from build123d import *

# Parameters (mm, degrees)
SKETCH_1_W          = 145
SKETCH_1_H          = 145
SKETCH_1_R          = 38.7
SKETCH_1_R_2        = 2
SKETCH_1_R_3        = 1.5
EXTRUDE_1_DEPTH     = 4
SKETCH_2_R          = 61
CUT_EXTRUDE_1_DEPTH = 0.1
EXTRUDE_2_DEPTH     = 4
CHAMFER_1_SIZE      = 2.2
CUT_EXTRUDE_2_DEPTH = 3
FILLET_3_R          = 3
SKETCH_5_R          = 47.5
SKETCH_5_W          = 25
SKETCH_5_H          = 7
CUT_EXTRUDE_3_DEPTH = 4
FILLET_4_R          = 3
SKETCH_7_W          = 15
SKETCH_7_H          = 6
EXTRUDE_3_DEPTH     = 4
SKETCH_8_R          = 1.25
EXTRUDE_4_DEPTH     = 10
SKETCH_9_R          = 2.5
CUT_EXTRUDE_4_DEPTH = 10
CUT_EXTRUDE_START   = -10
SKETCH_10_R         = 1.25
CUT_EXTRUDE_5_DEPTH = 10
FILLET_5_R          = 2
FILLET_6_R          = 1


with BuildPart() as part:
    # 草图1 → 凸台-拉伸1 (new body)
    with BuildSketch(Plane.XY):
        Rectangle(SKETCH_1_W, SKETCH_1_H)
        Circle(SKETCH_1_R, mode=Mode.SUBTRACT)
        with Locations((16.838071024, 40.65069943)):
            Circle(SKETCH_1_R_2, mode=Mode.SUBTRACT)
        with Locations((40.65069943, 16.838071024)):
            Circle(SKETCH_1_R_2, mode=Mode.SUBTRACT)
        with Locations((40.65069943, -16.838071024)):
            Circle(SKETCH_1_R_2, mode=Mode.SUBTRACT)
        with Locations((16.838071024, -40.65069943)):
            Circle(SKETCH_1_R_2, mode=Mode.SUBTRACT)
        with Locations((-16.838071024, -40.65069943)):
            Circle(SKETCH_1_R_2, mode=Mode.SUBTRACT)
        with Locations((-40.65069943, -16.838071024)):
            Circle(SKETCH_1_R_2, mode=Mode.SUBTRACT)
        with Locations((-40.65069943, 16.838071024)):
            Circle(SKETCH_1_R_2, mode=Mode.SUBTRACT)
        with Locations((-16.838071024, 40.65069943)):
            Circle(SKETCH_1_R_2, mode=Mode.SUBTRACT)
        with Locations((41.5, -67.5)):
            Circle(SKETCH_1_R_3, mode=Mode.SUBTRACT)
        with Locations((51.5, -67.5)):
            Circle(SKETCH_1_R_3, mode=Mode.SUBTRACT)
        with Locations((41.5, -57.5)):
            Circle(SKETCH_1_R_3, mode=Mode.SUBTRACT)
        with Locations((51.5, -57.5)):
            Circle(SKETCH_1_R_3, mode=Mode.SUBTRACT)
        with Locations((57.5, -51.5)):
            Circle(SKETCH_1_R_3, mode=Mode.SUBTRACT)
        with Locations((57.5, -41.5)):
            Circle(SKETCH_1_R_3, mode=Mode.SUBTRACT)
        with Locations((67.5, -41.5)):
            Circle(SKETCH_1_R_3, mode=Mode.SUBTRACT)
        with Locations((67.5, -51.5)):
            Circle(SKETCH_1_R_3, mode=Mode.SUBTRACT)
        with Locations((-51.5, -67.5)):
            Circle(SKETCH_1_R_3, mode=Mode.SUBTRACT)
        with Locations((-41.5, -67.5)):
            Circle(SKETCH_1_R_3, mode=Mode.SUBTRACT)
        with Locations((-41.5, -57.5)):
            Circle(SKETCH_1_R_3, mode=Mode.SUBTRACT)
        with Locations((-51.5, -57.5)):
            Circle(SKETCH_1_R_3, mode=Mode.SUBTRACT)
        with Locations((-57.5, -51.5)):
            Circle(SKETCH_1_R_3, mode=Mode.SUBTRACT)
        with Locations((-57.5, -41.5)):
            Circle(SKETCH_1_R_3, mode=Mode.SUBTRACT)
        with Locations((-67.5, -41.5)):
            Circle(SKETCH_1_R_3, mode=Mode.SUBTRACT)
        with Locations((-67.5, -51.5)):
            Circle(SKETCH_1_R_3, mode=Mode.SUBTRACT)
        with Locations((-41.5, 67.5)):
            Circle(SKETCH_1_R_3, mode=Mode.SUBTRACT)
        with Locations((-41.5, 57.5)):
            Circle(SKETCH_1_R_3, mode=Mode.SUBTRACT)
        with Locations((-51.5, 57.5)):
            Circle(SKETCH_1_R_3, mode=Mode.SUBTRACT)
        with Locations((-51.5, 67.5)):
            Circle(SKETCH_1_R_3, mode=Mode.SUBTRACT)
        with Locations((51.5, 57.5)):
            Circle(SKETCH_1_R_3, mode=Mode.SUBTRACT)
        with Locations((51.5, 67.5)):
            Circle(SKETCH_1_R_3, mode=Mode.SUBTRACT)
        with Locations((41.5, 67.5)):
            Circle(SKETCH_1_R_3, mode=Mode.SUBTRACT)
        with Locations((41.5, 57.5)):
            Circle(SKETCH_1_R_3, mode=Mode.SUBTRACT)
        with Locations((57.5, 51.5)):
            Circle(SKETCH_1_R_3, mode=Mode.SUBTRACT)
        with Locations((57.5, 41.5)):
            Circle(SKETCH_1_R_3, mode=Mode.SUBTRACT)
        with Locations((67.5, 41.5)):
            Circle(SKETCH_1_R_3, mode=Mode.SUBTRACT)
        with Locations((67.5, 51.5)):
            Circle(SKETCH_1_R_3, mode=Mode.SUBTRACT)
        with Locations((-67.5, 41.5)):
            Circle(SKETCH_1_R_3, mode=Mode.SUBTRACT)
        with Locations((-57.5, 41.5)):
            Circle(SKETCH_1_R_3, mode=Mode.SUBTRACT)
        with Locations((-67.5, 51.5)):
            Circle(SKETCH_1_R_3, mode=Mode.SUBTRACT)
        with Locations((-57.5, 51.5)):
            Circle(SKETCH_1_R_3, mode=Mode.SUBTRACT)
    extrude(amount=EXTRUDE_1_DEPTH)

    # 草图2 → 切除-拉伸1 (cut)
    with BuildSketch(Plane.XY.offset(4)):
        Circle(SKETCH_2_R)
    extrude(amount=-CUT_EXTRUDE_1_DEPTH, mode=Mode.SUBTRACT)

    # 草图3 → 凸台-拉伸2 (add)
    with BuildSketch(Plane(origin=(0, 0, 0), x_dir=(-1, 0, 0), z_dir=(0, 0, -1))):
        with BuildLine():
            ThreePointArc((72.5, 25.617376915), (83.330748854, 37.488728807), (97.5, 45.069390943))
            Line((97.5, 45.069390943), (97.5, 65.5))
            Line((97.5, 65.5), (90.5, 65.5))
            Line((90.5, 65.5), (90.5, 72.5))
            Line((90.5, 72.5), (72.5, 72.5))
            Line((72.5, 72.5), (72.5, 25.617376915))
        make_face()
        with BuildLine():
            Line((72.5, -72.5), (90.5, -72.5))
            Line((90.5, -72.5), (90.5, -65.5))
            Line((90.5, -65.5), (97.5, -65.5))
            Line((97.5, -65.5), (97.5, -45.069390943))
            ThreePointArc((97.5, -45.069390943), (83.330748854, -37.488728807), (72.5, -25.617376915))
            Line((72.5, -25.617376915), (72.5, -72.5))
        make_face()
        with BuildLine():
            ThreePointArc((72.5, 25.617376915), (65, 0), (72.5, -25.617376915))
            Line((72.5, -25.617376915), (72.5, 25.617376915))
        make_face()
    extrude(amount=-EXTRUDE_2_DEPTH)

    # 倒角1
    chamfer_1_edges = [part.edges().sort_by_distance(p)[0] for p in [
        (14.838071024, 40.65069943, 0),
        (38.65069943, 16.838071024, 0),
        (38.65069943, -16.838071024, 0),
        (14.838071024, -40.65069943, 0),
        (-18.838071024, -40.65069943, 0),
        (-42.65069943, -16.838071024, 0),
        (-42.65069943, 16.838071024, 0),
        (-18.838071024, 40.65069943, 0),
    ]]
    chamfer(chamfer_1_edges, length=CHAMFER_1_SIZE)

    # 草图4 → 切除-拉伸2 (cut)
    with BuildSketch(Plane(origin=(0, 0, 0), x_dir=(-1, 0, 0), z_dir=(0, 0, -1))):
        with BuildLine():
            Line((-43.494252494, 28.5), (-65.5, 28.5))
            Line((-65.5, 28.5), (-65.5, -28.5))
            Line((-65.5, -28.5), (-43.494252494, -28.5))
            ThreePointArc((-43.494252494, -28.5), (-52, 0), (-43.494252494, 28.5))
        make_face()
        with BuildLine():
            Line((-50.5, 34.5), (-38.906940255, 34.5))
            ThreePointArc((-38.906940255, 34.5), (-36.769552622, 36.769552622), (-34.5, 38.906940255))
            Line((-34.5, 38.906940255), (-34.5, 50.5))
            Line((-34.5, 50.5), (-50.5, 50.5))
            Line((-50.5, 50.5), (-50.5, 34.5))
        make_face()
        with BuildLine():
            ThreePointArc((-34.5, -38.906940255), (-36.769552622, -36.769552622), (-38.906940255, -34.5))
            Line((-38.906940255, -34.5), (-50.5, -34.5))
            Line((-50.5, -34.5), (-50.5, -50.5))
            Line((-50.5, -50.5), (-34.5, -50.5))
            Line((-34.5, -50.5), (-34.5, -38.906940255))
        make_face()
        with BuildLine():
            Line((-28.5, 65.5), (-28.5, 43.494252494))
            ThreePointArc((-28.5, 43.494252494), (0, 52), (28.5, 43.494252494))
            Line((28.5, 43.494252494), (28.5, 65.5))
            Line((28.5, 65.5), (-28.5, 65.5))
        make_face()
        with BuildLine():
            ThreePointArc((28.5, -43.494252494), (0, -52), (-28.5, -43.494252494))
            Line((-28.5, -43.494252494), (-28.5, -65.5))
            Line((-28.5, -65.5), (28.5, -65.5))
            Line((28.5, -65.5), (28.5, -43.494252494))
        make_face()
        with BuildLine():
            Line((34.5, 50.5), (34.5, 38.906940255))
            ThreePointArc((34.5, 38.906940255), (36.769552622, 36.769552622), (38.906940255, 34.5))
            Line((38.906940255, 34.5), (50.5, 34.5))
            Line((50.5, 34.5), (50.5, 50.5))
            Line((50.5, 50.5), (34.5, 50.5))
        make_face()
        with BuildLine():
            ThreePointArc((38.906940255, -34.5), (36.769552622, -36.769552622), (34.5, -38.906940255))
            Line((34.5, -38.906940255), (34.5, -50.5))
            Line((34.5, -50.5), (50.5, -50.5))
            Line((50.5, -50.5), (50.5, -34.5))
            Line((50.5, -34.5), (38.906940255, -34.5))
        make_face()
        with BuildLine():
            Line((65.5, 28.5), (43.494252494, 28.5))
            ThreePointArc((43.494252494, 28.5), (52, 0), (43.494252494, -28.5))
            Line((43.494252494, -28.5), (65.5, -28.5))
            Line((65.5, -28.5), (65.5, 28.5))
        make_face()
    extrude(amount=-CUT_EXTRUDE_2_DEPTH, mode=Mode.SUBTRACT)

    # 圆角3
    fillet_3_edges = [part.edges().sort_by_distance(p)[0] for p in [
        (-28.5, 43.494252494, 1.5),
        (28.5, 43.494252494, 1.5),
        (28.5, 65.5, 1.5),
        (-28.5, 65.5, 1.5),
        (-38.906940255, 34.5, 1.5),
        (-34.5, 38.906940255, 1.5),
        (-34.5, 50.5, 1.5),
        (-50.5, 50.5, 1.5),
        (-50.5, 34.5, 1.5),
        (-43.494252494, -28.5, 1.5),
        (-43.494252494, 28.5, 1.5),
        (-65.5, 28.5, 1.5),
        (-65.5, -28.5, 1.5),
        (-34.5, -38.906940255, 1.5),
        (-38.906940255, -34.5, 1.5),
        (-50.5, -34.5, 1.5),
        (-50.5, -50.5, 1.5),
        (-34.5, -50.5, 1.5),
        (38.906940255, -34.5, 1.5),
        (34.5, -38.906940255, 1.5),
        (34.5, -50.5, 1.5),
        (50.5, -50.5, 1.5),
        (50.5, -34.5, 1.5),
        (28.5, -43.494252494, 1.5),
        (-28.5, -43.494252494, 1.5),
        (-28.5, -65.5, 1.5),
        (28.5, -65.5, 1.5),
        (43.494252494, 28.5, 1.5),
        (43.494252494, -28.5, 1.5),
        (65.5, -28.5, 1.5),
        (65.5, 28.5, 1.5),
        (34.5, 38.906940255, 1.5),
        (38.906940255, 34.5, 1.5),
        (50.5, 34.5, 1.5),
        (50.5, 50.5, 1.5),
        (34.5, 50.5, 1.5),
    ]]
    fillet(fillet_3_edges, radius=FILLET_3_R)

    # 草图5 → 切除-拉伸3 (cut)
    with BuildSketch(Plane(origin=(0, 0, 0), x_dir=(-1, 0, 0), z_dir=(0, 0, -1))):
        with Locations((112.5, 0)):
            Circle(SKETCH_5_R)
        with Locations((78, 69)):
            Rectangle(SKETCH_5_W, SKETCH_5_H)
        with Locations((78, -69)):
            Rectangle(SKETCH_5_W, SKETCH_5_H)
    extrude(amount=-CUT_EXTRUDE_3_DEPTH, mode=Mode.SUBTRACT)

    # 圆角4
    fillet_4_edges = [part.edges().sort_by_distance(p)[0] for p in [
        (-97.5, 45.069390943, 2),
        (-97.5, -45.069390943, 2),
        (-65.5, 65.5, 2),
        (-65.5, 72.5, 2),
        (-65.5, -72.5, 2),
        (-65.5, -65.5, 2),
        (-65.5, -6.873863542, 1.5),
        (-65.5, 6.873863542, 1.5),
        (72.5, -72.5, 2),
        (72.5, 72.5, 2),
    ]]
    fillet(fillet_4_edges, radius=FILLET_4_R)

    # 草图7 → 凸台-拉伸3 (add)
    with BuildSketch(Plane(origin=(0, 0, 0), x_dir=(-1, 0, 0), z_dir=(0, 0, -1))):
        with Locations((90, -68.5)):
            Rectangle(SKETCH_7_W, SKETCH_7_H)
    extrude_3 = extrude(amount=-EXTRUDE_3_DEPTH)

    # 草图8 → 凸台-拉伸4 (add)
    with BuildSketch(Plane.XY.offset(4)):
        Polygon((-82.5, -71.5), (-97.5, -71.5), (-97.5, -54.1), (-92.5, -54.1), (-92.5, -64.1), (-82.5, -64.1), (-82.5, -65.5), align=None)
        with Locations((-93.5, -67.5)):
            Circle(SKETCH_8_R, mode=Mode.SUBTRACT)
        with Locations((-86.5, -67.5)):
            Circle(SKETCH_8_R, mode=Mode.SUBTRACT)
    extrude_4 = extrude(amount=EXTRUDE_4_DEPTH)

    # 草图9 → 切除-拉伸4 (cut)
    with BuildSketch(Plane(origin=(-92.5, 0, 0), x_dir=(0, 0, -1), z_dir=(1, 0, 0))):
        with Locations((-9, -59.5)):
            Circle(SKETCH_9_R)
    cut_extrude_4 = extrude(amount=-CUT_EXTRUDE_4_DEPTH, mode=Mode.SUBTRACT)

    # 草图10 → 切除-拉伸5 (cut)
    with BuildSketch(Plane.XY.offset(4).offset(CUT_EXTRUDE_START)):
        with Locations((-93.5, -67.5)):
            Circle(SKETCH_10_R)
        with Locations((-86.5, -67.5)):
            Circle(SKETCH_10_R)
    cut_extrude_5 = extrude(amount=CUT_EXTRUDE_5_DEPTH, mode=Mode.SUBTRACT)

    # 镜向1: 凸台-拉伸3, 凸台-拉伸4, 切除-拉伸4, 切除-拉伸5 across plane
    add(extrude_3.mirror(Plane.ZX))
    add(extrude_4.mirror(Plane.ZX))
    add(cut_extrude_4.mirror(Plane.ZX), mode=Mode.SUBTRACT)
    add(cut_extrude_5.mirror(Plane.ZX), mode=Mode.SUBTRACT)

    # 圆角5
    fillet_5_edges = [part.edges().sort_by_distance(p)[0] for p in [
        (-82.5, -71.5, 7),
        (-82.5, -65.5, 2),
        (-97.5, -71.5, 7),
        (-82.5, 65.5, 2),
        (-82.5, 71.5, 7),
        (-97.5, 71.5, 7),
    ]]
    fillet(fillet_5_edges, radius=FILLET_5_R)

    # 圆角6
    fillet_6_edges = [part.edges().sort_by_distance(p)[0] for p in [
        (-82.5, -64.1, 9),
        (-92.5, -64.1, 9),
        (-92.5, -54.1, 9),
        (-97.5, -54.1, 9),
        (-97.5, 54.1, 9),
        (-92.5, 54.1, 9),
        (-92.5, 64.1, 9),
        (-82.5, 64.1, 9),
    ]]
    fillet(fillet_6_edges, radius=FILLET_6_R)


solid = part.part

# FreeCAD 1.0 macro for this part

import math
import FreeCAD as App
import Part
import Sketcher
from FreeCAD import Vector
Q = App.Units.Quantity


def edges_at(feature, points):
    """Names of the edges that pass closest to the given points."""
    edges = feature.Shape.Edges
    near = lambda p: min(range(len(edges)), key=lambda i: edges[i].distToShape(Part.Vertex(*p))[0])
    return sorted({f"Edge{near(p) + 1}" for p in points})


def add_polygon(sketch, points):
    """Adds a closed chain of lines whose ends are joined by coincident constraints."""
    first, n = sketch.GeometryCount, len(points)
    for a, b in zip(points, points[1:] + points[:1]):
        sketch.addGeometry(Part.LineSegment(App.Vector(*a, 0), App.Vector(*b, 0)), False)
    for i in range(n):
        sketch.addConstraint(Sketcher.Constraint("Coincident", first + i, 2, first + (i + 1) % n, 1))

doc = App.newDocument("Part")
body = doc.addObject("PartDesign::Body", "Body")

sketch1 = doc.addObject("Sketcher::SketchObject", "Sketch")
body.addObject(sketch1)
sketch1.AttachmentSupport = (doc.XY_Plane, [""])
sketch1.MapMode = "FlatFace"
add_polygon(sketch1, [(-72.5, 72.5), (-72.5, -72.5), (72.5, -72.5), (72.5, 72.5)])
sketch1.addGeometry(Part.Circle(Vector(-51.5, -67.5, 0), Vector(0, 0, 1), 1.5), False)
sketch1.addGeometry(Part.Circle(Vector(-41.5, -67.5, 0), Vector(0, 0, 1), 1.5), False)
sketch1.addGeometry(Part.Circle(Vector(-51.5, -57.5, 0), Vector(0, 0, 1), 1.5), False)
sketch1.addGeometry(Part.Circle(Vector(-41.5, -57.5, 0), Vector(0, 0, 1), 1.5), False)
sketch1.addGeometry(Part.Circle(Vector(-67.5, -51.5, 0), Vector(0, 0, 1), 1.5), False)
sketch1.addGeometry(Part.Circle(Vector(-57.5, -51.5, 0), Vector(0, 0, 1), 1.5), False)
sketch1.addGeometry(Part.Circle(Vector(-67.5, -41.5, 0), Vector(0, 0, 1), 1.5), False)
sketch1.addGeometry(Part.Circle(Vector(-57.5, -41.5, 0), Vector(0, 0, 1), 1.5), False)
sketch1.addGeometry(Part.Circle(Vector(-16.8, -40.7, 0), Vector(0, 0, 1), 2), False)
sketch1.addGeometry(Part.Circle(Vector(-40.7, -16.8, 0), Vector(0, 0, 1), 2), False)
sketch1.addGeometry(Part.Circle(Vector(16.8, -40.7, 0), Vector(0, 0, 1), 2), False)
sketch1.addGeometry(Part.Circle(Vector(41.5, -67.5, 0), Vector(0, 0, 1), 1.5), False)
sketch1.addGeometry(Part.Circle(Vector(51.5, -67.5, 0), Vector(0, 0, 1), 1.5), False)
sketch1.addGeometry(Part.Circle(Vector(41.5, -57.5, 0), Vector(0, 0, 1), 1.5), False)
sketch1.addGeometry(Part.Circle(Vector(51.5, -57.5, 0), Vector(0, 0, 1), 1.5), False)
sketch1.addGeometry(Part.Circle(Vector(57.5, -51.5, 0), Vector(0, 0, 1), 1.5), False)
sketch1.addGeometry(Part.Circle(Vector(67.5, -51.5, 0), Vector(0, 0, 1), 1.5), False)
sketch1.addGeometry(Part.Circle(Vector(57.5, -41.5, 0), Vector(0, 0, 1), 1.5), False)
sketch1.addGeometry(Part.Circle(Vector(67.5, -41.5, 0), Vector(0, 0, 1), 1.5), False)
sketch1.addGeometry(Part.Circle(Vector(40.7, -16.8, 0), Vector(0, 0, 1), 2), False)
sketch1.addGeometry(Part.Circle(Vector(-40.7, 16.8, 0), Vector(0, 0, 1), 2), False)
sketch1.addGeometry(Part.Circle(Vector(-67.5, 41.5, 0), Vector(0, 0, 1), 1.5), False)
sketch1.addGeometry(Part.Circle(Vector(-57.5, 41.5, 0), Vector(0, 0, 1), 1.5), False)
sketch1.addGeometry(Part.Circle(Vector(-67.5, 51.5, 0), Vector(0, 0, 1), 1.5), False)
sketch1.addGeometry(Part.Circle(Vector(-57.5, 51.5, 0), Vector(0, 0, 1), 1.5), False)
sketch1.addGeometry(Part.Circle(Vector(-51.5, 57.5, 0), Vector(0, 0, 1), 1.5), False)
sketch1.addGeometry(Part.Circle(Vector(-41.5, 57.5, 0), Vector(0, 0, 1), 1.5), False)
sketch1.addGeometry(Part.Circle(Vector(-51.5, 67.5, 0), Vector(0, 0, 1), 1.5), False)
sketch1.addGeometry(Part.Circle(Vector(-41.5, 67.5, 0), Vector(0, 0, 1), 1.5), False)
sketch1.addGeometry(Part.Circle(Vector(-16.8, 40.7, 0), Vector(0, 0, 1), 2), False)
sketch1.addGeometry(Part.Circle(Vector(0, 0, 0), Vector(0, 0, 1), 38.7), False)
sketch1.addGeometry(Part.Circle(Vector(40.7, 16.8, 0), Vector(0, 0, 1), 2), False)
sketch1.addGeometry(Part.Circle(Vector(16.8, 40.7, 0), Vector(0, 0, 1), 2), False)
sketch1.addGeometry(Part.Circle(Vector(57.5, 41.5, 0), Vector(0, 0, 1), 1.5), False)
sketch1.addGeometry(Part.Circle(Vector(67.5, 41.5, 0), Vector(0, 0, 1), 1.5), False)
sketch1.addGeometry(Part.Circle(Vector(57.5, 51.5, 0), Vector(0, 0, 1), 1.5), False)
sketch1.addGeometry(Part.Circle(Vector(67.5, 51.5, 0), Vector(0, 0, 1), 1.5), False)
sketch1.addGeometry(Part.Circle(Vector(41.5, 57.5, 0), Vector(0, 0, 1), 1.5), False)
sketch1.addGeometry(Part.Circle(Vector(51.5, 57.5, 0), Vector(0, 0, 1), 1.5), False)
sketch1.addGeometry(Part.Circle(Vector(41.5, 67.5, 0), Vector(0, 0, 1), 1.5), False)
sketch1.addGeometry(Part.Circle(Vector(51.5, 67.5, 0), Vector(0, 0, 1), 1.5), False)
sketch1.addConstraint([
    Sketcher.Constraint("Vertical", 0),
    Sketcher.Constraint("Horizontal", 1),
    Sketcher.Constraint("Vertical", 2),
    Sketcher.Constraint("Horizontal", 3),
    Sketcher.Constraint("Coincident", 34, 3, -1, 1),
    Sketcher.Constraint("Equal", 4, 5),
    Sketcher.Constraint("Equal", 5, 6),
    Sketcher.Constraint("Equal", 6, 7),
    Sketcher.Constraint("Equal", 7, 8),
    Sketcher.Constraint("Equal", 8, 9),
    Sketcher.Constraint("Equal", 9, 10),
    Sketcher.Constraint("Equal", 10, 11),
    Sketcher.Constraint("Equal", 12, 13),
    Sketcher.Constraint("Equal", 13, 14),
    Sketcher.Constraint("Equal", 11, 15),
    Sketcher.Constraint("Equal", 15, 16),
    Sketcher.Constraint("Equal", 16, 17),
    Sketcher.Constraint("Equal", 17, 18),
    Sketcher.Constraint("Equal", 18, 19),
    Sketcher.Constraint("Equal", 19, 20),
    Sketcher.Constraint("Equal", 20, 21),
    Sketcher.Constraint("Equal", 21, 22),
    Sketcher.Constraint("Equal", 14, 23),
    Sketcher.Constraint("Equal", 23, 24),
    Sketcher.Constraint("Equal", 22, 25),
    Sketcher.Constraint("Equal", 25, 26),
    Sketcher.Constraint("Equal", 26, 27),
    Sketcher.Constraint("Equal", 27, 28),
    Sketcher.Constraint("Equal", 28, 29),
    Sketcher.Constraint("Equal", 29, 30),
    Sketcher.Constraint("Equal", 30, 31),
    Sketcher.Constraint("Equal", 31, 32),
    Sketcher.Constraint("Equal", 24, 33),
    Sketcher.Constraint("Equal", 33, 35),
    Sketcher.Constraint("Equal", 35, 36),
    Sketcher.Constraint("Equal", 32, 37),
    Sketcher.Constraint("Equal", 37, 38),
    Sketcher.Constraint("Equal", 38, 39),
    Sketcher.Constraint("Equal", 39, 40),
    Sketcher.Constraint("Equal", 40, 41),
    Sketcher.Constraint("Equal", 41, 42),
    Sketcher.Constraint("Equal", 42, 43),
    Sketcher.Constraint("Equal", 43, 44),
    Sketcher.Constraint("Symmetric", 23, 3, 24, 3, -1, 1),
    Sketcher.Constraint("Symmetric", 22, 3, 25, 3, -1, 1),
    Sketcher.Constraint("Symmetric", 21, 3, 26, 3, -1, 1),
    Sketcher.Constraint("Symmetric", 20, 3, 27, 3, -1, 1),
    Sketcher.Constraint("Symmetric", 19, 3, 28, 3, -1, 1),
    Sketcher.Constraint("Symmetric", 18, 3, 29, 3, -1, 1),
    Sketcher.Constraint("Symmetric", 17, 3, 30, 3, -1, 1),
    Sketcher.Constraint("Symmetric", 16, 3, 31, 3, -1, 1),
    Sketcher.Constraint("Symmetric", 15, 3, 32, 3, -1, 1),
    Sketcher.Constraint("Symmetric", 14, 3, 33, 3, -1, 1),
    Sketcher.Constraint("Symmetric", 13, 3, 35, 3, -1, 1),
    Sketcher.Constraint("Symmetric", 12, 3, 36, 3, -1, 1),
    Sketcher.Constraint("Symmetric", 11, 3, 37, 3, -1, 1),
    Sketcher.Constraint("Symmetric", 10, 3, 38, 3, -1, 1),
    Sketcher.Constraint("Symmetric", 9, 3, 39, 3, -1, 1),
    Sketcher.Constraint("Symmetric", 8, 3, 40, 3, -1, 1),
    Sketcher.Constraint("Symmetric", 7, 3, 41, 3, -1, 1),
    Sketcher.Constraint("Symmetric", 6, 3, 42, 3, -1, 1),
    Sketcher.Constraint("Symmetric", 5, 3, 43, 3, -1, 1),
    Sketcher.Constraint("Symmetric", 4, 3, 44, 3, -1, 1),
    Sketcher.Constraint("Symmetric", 0, 2, 2, 2, -1, 1),
    Sketcher.Constraint("Symmetric", 12, 3, 14, 3, -2),
    Sketcher.Constraint("Symmetric", 5, 3, 15, 3, -2),
    Sketcher.Constraint("Symmetric", 4, 3, 16, 3, -2),
    Sketcher.Constraint("Symmetric", 7, 3, 17, 3, -2),
    Sketcher.Constraint("Symmetric", 6, 3, 18, 3, -2),
    Sketcher.Constraint("Symmetric", 9, 3, 19, 3, -2),
    Sketcher.Constraint("Symmetric", 8, 3, 20, 3, -2),
    Sketcher.Constraint("Symmetric", 11, 3, 21, 3, -2),
    Sketcher.Constraint("Symmetric", 10, 3, 22, 3, -2),
    Sketcher.Constraint("Symmetric", 13, 3, 23, 3, -2),
    Sketcher.Constraint("Horizontal", 4, 3, 5, 3),
    Sketcher.Constraint("Horizontal", 6, 3, 7, 3),
    Sketcher.Constraint("Horizontal", 8, 3, 9, 3),
    Sketcher.Constraint("Horizontal", 10, 3, 11, 3),
    Sketcher.Constraint("Vertical", 4, 3, 6, 3),
    Sketcher.Constraint("Vertical", 5, 3, 7, 3),
    Sketcher.Constraint("Vertical", 8, 3, 10, 3),
    Sketcher.Constraint("Vertical", 9, 3, 11, 3),
    Sketcher.Constraint("Equal", 3, 0),
    Sketcher.Constraint("Diameter", 4, Q("3 mm")),
    Sketcher.Constraint("Diameter", 12, Q("4 mm")),
    Sketcher.Constraint("Diameter", 34, Q("77.4 mm")),
    Sketcher.Constraint("DistanceX", 1, 1, 1, 2, Q("145 mm")),
    Sketcher.Constraint("DistanceX", 4, 3, 5, 3, Q("10 mm")),
    Sketcher.Constraint("DistanceY", 4, 3, 6, 3, Q("10 mm")),
    Sketcher.Constraint("DistanceX", 8, 3, 6, 3, Q("16 mm")),
    Sketcher.Constraint("DistanceY", 6, 3, 8, 3, Q("6 mm")),
    Sketcher.Constraint("DistanceX", 9, 3, 6, 3, Q("6 mm")),
    Sketcher.Constraint("DistanceY", 8, 3, 10, 3, Q("10 mm")),
    Sketcher.Constraint("DistanceX", 5, 3, 15, 3, Q("83 mm")),
    Sketcher.Constraint("DistanceY", 10, 3, 25, 3, Q("83 mm")),
    Sketcher.Constraint("DistanceY", 12, 3, -1, 1, Q("40.650699 mm")),
    Sketcher.Constraint("DistanceX", 13, 3, -1, 1, Q("40.650699 mm")),
    Sketcher.Constraint("DistanceX", 12, 3, -1, 1, Q("16.838071 mm")),
    Sketcher.Constraint("DistanceY", 13, 3, -1, 1, Q("16.838071 mm")),
])
pad1 = doc.addObject("PartDesign::Pad", "Pad")
body.addObject(pad1)
pad1.Profile = sketch1
pad1.Length = 4

sketch2 = doc.addObject("Sketcher::SketchObject", "Sketch001")
body.addObject(sketch2)
sketch2.AttachmentSupport = (doc.XY_Plane, [""])
sketch2.MapMode = "FlatFace"
sketch2.AttachmentOffset = App.Placement(Vector(0, 0, 4), App.Rotation())
sketch2.addGeometry(Part.Circle(Vector(0, 0, 0), Vector(0, 0, 1), 61), False)
sketch2.addConstraint([
    Sketcher.Constraint("Coincident", 0, 3, -1, 1),
    Sketcher.Constraint("Diameter", 0, Q("122 mm")),
])
pocket1 = doc.addObject("PartDesign::Pocket", "Pocket")
body.addObject(pocket1)
pocket1.Profile = sketch2
pocket1.Length = 0.1

sketch3 = doc.addObject("Sketcher::SketchObject", "Sketch002")
body.addObject(sketch3)
sketch3.AttachmentSupport = (doc.XY_Plane, [""])
sketch3.MapMode = "FlatFace"
sketch3.addGeometry([
    Part.ArcOfCircle(Part.Circle(Vector(-112, 0, 0), Vector(0, 0, 1), 48), math.radians(33), math.radians(72)),
    Part.LineSegment(Vector(-98, 45, 0), Vector(-98, 66, 0)),
    Part.LineSegment(Vector(-98, 66, 0), Vector(-90, 66, 0)),
    Part.LineSegment(Vector(-90, 66, 0), Vector(-90, 72, 0)),
    Part.LineSegment(Vector(-90, 72, 0), Vector(-72, 72, 0)),
    Part.LineSegment(Vector(-72, 72, 0), Vector(-72, 26, 0)),
    Part.LineSegment(Vector(-72, -72, 0), Vector(-90, -72, 0)),
    Part.LineSegment(Vector(-90, -72, 0), Vector(-90, -66, 0)),
    Part.LineSegment(Vector(-90, -66, 0), Vector(-98, -66, 0)),
    Part.LineSegment(Vector(-98, -66, 0), Vector(-98, -45, 0)),
    Part.ArcOfCircle(Part.Circle(Vector(-112, 0, 0), Vector(0, 0, 1), 48), math.radians(-72), math.radians(-33)),
    Part.LineSegment(Vector(-72, -26, 0), Vector(-72, -72, 0)),
    Part.ArcOfCircle(Part.Circle(Vector(-112, 0, 0), Vector(0, 0, 1), 48), math.radians(-33), math.radians(33)),
    Part.LineSegment(Vector(-72, -26, 0), Vector(-72, 26, 0)),
], False)
sketch3.addConstraint([
    Sketcher.Constraint("Coincident", 0, 2, 1, 1),
    Sketcher.Constraint("Coincident", 1, 2, 2, 1),
    Sketcher.Constraint("Coincident", 2, 2, 3, 1),
    Sketcher.Constraint("Coincident", 3, 2, 4, 1),
    Sketcher.Constraint("Coincident", 4, 2, 5, 1),
    Sketcher.Constraint("Coincident", 5, 2, 0, 1),
    Sketcher.Constraint("Coincident", 6, 2, 7, 1),
    Sketcher.Constraint("Coincident", 7, 2, 8, 1),
    Sketcher.Constraint("Coincident", 8, 2, 9, 1),
    Sketcher.Constraint("Coincident", 9, 2, 10, 1),
    Sketcher.Constraint("Coincident", 10, 2, 11, 1),
    Sketcher.Constraint("Coincident", 11, 2, 6, 1),
    Sketcher.Constraint("Coincident", 12, 1, 13, 1),
    Sketcher.Constraint("Coincident", 13, 2, 12, 2),
    Sketcher.Constraint("Vertical", 1),
    Sketcher.Constraint("Horizontal", 2),
    Sketcher.Constraint("Vertical", 3),
    Sketcher.Constraint("Horizontal", 4),
    Sketcher.Constraint("Vertical", 5),
    Sketcher.Constraint("Horizontal", 6),
    Sketcher.Constraint("Vertical", 7),
    Sketcher.Constraint("Horizontal", 8),
    Sketcher.Constraint("Vertical", 9),
    Sketcher.Constraint("Vertical", 11),
    Sketcher.Constraint("Vertical", 13),
    Sketcher.Constraint("Coincident", 10, 3, 0, 3),
    Sketcher.Constraint("Coincident", 12, 3, 0, 3),
    Sketcher.Constraint("Coincident", 12, 1, 10, 2),
    Sketcher.Constraint("Coincident", 13, 2, 5, 2),
    Sketcher.Constraint("Symmetric", 3, 2, 6, 2, -1),
    Sketcher.Constraint("Symmetric", 1, 2, 8, 2, -1),
    Sketcher.Constraint("PointOnObject", 0, 3, -1),
    Sketcher.Constraint("Equal", 8, 3),
    Sketcher.Constraint("Radius", 0, Q("47.5 mm")),
    Sketcher.Constraint("DistanceX", 2, 1, 2, 2, Q("7 mm")),
    Sketcher.Constraint("DistanceX", 4, 1, 4, 2, Q("18 mm")),
    Sketcher.Constraint("DistanceX", 10, 3, 0, 2, Q("15 mm")),
    Sketcher.Constraint("DistanceX", 0, 3, -1, 1, Q("112.5 mm")),
    Sketcher.Constraint("DistanceY", -1, 1, 1, 2, Q("65.5 mm")),
])
pad2 = doc.addObject("PartDesign::Pad", "Pad001")
body.addObject(pad2)
pad2.Profile = sketch3
pad2.Length = 4
doc.recompute()

chamfer = doc.addObject("PartDesign::Chamfer", "Chamfer")
body.addObject(chamfer)
chamfer.Base = (pad2, edges_at(pad2, [
    (14.838, 40.651, 0),
    (38.651, 16.838, 0),
    (38.651, -16.838, 0),
    (14.838, -40.651, 0),
    (-18.838, -40.651, 0),
    (-42.651, -16.838, 0),
    (-42.651, 16.838, 0),
    (-18.838, 40.651, 0),
]))
chamfer.Size = 2.2

sketch4 = doc.addObject("Sketcher::SketchObject", "Sketch003")
body.addObject(sketch4)
sketch4.AttachmentSupport = (doc.XY_Plane, [""])
sketch4.MapMode = "FlatFace"
sketch4.addGeometry([
    Part.LineSegment(Vector(43, 28, 0), Vector(66, 28, 0)),
    Part.LineSegment(Vector(66, 28, 0), Vector(66, -28, 0)),
    Part.LineSegment(Vector(66, -28, 0), Vector(43, -28, 0)),
    Part.ArcOfCircle(Part.Circle(Vector(0, 0, 0), Vector(0, 0, 1), 52), math.radians(-33), math.radians(33)),
    Part.LineSegment(Vector(50, 34, 0), Vector(39, 34, 0)),
    Part.ArcOfCircle(Part.Circle(Vector(0, 0, 0), Vector(0, 0, 1), 52), math.radians(41.56), math.radians(48.44)),
    Part.LineSegment(Vector(34, 39, 0), Vector(34, 50, 0)),
    Part.LineSegment(Vector(34, 50, 0), Vector(50, 50, 0)),
    Part.LineSegment(Vector(50, 50, 0), Vector(50, 34, 0)),
    Part.ArcOfCircle(Part.Circle(Vector(0, 0, 0), Vector(0, 0, 1), 52), math.radians(-48.44), math.radians(-41.56)),
    Part.LineSegment(Vector(39, -34, 0), Vector(50, -34, 0)),
    Part.LineSegment(Vector(50, -34, 0), Vector(50, -50, 0)),
    Part.LineSegment(Vector(50, -50, 0), Vector(34, -50, 0)),
    Part.LineSegment(Vector(34, -50, 0), Vector(34, -39, 0)),
    Part.LineSegment(Vector(28, 66, 0), Vector(28, 43, 0)),
    Part.ArcOfCircle(Part.Circle(Vector(0, 0, 0), Vector(0, 0, 1), 52), math.radians(57), math.radians(123)),
    Part.LineSegment(Vector(-28, 43, 0), Vector(-28, 66, 0)),
    Part.LineSegment(Vector(-28, 66, 0), Vector(28, 66, 0)),
    Part.ArcOfCircle(Part.Circle(Vector(0, 0, 0), Vector(0, 0, 1), 52), math.radians(-123), math.radians(-57)),
    Part.LineSegment(Vector(28, -43, 0), Vector(28, -66, 0)),
    Part.LineSegment(Vector(28, -66, 0), Vector(-28, -66, 0)),
    Part.LineSegment(Vector(-28, -66, 0), Vector(-28, -43, 0)),
    Part.LineSegment(Vector(-34, 50, 0), Vector(-34, 39, 0)),
    Part.ArcOfCircle(Part.Circle(Vector(0, 0, 0), Vector(0, 0, 1), 52), math.radians(131.56), math.radians(138.44)),
    Part.LineSegment(Vector(-39, 34, 0), Vector(-50, 34, 0)),
    Part.LineSegment(Vector(-50, 34, 0), Vector(-50, 50, 0)),
    Part.LineSegment(Vector(-50, 50, 0), Vector(-34, 50, 0)),
    Part.ArcOfCircle(Part.Circle(Vector(0, 0, 0), Vector(0, 0, 1), 52), math.radians(-138.44), math.radians(-131.56)),
    Part.LineSegment(Vector(-34, -39, 0), Vector(-34, -50, 0)),
    Part.LineSegment(Vector(-34, -50, 0), Vector(-50, -50, 0)),
    Part.LineSegment(Vector(-50, -50, 0), Vector(-50, -34, 0)),
    Part.LineSegment(Vector(-50, -34, 0), Vector(-39, -34, 0)),
    Part.LineSegment(Vector(-66, 28, 0), Vector(-43, 28, 0)),
    Part.ArcOfCircle(Part.Circle(Vector(0, 0, 0), Vector(0, 0, 1), 52), math.radians(147), math.radians(213)),
    Part.LineSegment(Vector(-43, -28, 0), Vector(-66, -28, 0)),
    Part.LineSegment(Vector(-66, -28, 0), Vector(-66, 28, 0)),
], False)
sketch4.addConstraint([
    Sketcher.Constraint("Coincident", 0, 2, 1, 1),
    Sketcher.Constraint("Coincident", 1, 2, 2, 1),
    Sketcher.Constraint("Coincident", 2, 2, 3, 1),
    Sketcher.Constraint("Coincident", 3, 2, 0, 1),
    Sketcher.Constraint("Coincident", 4, 2, 5, 1),
    Sketcher.Constraint("Coincident", 5, 2, 6, 1),
    Sketcher.Constraint("Coincident", 6, 2, 7, 1),
    Sketcher.Constraint("Coincident", 7, 2, 8, 1),
    Sketcher.Constraint("Coincident", 8, 2, 4, 1),
    Sketcher.Constraint("Coincident", 9, 2, 10, 1),
    Sketcher.Constraint("Coincident", 10, 2, 11, 1),
    Sketcher.Constraint("Coincident", 11, 2, 12, 1),
    Sketcher.Constraint("Coincident", 12, 2, 13, 1),
    Sketcher.Constraint("Coincident", 13, 2, 9, 1),
    Sketcher.Constraint("Coincident", 14, 2, 15, 1),
    Sketcher.Constraint("Coincident", 15, 2, 16, 1),
    Sketcher.Constraint("Coincident", 16, 2, 17, 1),
    Sketcher.Constraint("Coincident", 17, 2, 14, 1),
    Sketcher.Constraint("Coincident", 18, 2, 19, 1),
    Sketcher.Constraint("Coincident", 19, 2, 20, 1),
    Sketcher.Constraint("Coincident", 20, 2, 21, 1),
    Sketcher.Constraint("Coincident", 21, 2, 18, 1),
    Sketcher.Constraint("Coincident", 22, 2, 23, 1),
    Sketcher.Constraint("Coincident", 23, 2, 24, 1),
    Sketcher.Constraint("Coincident", 24, 2, 25, 1),
    Sketcher.Constraint("Coincident", 25, 2, 26, 1),
    Sketcher.Constraint("Coincident", 26, 2, 22, 1),
    Sketcher.Constraint("Coincident", 27, 2, 28, 1),
    Sketcher.Constraint("Coincident", 28, 2, 29, 1),
    Sketcher.Constraint("Coincident", 29, 2, 30, 1),
    Sketcher.Constraint("Coincident", 30, 2, 31, 1),
    Sketcher.Constraint("Coincident", 31, 2, 27, 1),
    Sketcher.Constraint("Coincident", 32, 2, 33, 1),
    Sketcher.Constraint("Coincident", 33, 2, 34, 1),
    Sketcher.Constraint("Coincident", 34, 2, 35, 1),
    Sketcher.Constraint("Coincident", 35, 2, 32, 1),
    Sketcher.Constraint("Horizontal", 0),
    Sketcher.Constraint("Vertical", 1),
    Sketcher.Constraint("Horizontal", 2),
    Sketcher.Constraint("Horizontal", 4),
    Sketcher.Constraint("Vertical", 6),
    Sketcher.Constraint("Horizontal", 7),
    Sketcher.Constraint("Vertical", 8),
    Sketcher.Constraint("Horizontal", 10),
    Sketcher.Constraint("Vertical", 11),
    Sketcher.Constraint("Horizontal", 12),
    Sketcher.Constraint("Vertical", 13),
    Sketcher.Constraint("Vertical", 14),
    Sketcher.Constraint("Vertical", 16),
    Sketcher.Constraint("Horizontal", 17),
    Sketcher.Constraint("Vertical", 19),
    Sketcher.Constraint("Horizontal", 20),
    Sketcher.Constraint("Vertical", 21),
    Sketcher.Constraint("Vertical", 22),
    Sketcher.Constraint("Horizontal", 24),
    Sketcher.Constraint("Vertical", 25),
    Sketcher.Constraint("Horizontal", 26),
    Sketcher.Constraint("Vertical", 28),
    Sketcher.Constraint("Horizontal", 29),
    Sketcher.Constraint("Vertical", 30),
    Sketcher.Constraint("Horizontal", 31),
    Sketcher.Constraint("Horizontal", 32),
    Sketcher.Constraint("Horizontal", 34),
    Sketcher.Constraint("Vertical", 35),
    Sketcher.Constraint("Coincident", 3, 3, -1, 1),
    Sketcher.Constraint("Coincident", 5, 3, -1, 1),
    Sketcher.Constraint("Coincident", 9, 3, -1, 1),
    Sketcher.Constraint("Coincident", 15, 3, -1, 1),
    Sketcher.Constraint("Coincident", 18, 3, -1, 1),
    Sketcher.Constraint("Coincident", 23, 3, -1, 1),
    Sketcher.Constraint("Coincident", 27, 3, -1, 1),
    Sketcher.Constraint("Coincident", 33, 3, -1, 1),
    Sketcher.Constraint("Equal", 3, 5),
    Sketcher.Constraint("Equal", 5, 9),
    Sketcher.Constraint("Equal", 9, 15),
    Sketcher.Constraint("Equal", 15, 18),
    Sketcher.Constraint("Equal", 18, 23),
    Sketcher.Constraint("Equal", 23, 27),
    Sketcher.Constraint("Equal", 27, 33),
    Sketcher.Constraint("Symmetric", 16, 2, 19, 2, -1, 1),
    Sketcher.Constraint("Symmetric", 10, 2, 24, 2, -1, 1),
    Sketcher.Constraint("Symmetric", 12, 2, 26, 2, -1, 1),
    Sketcher.Constraint("Symmetric", 6, 2, 28, 2, -1, 1),
    Sketcher.Constraint("Symmetric", 8, 2, 30, 2, -1, 1),
    Sketcher.Constraint("Symmetric", 0, 2, 34, 2, -1, 1),
    Sketcher.Constraint("Symmetric", 8, 2, 24, 2, -2),
    Sketcher.Constraint("Symmetric", 6, 2, 26, 2, -2),
    Sketcher.Constraint("Horizontal", 14, 2, 15, 2),
    Sketcher.Constraint("Horizontal", 18, 2, 21, 2),
    Sketcher.Constraint("Horizontal", 3, 2, 32, 2),
    Sketcher.Constraint("Horizontal", 2, 2, 33, 2),
    Sketcher.Constraint("Equal", 20, 1),
    Sketcher.Constraint("Equal", 31, 6),
    Sketcher.Constraint("Equal", 29, 8),
    Sketcher.Constraint("Equal", 34, 14),
    Sketcher.Constraint("Radius", 3, Q("52 mm")),
    Sketcher.Constraint("DistanceX", 7, 1, 7, 2, Q("16 mm")),
    Sketcher.Constraint("DistanceX", 17, 1, 17, 2, Q("57 mm")),
    Sketcher.Constraint("DistanceY", 3, 2, 4, 2, Q("6 mm")),
    Sketcher.Constraint("DistanceX", 5, 2, 0, 2, Q("31 mm")),
])
pocket2 = doc.addObject("PartDesign::Pocket", "Pocket001")
body.addObject(pocket2)
pocket2.Profile = sketch4
pocket2.Length = 3
pocket2.Reversed = True
doc.recompute()

fillet = doc.addObject("PartDesign::Fillet", "Fillet")
body.addObject(fillet)
fillet.Base = (pocket2, edges_at(pocket2, [
    (-28.5, 43.494, 1.5),
    (28.5, 43.494, 1.5),
    (28.5, 65.5, 1.5),
    (-28.5, 65.5, 1.5),
    (-38.907, 34.5, 1.5),
    (-34.5, 38.907, 1.5),
    (-34.5, 50.5, 1.5),
    (-50.5, 50.5, 1.5),
    (-50.5, 34.5, 1.5),
    (-43.494, -28.5, 1.5),
    (-43.494, 28.5, 1.5),
    (-65.5, 28.5, 1.5),
    (-65.5, -28.5, 1.5),
    (-34.5, -38.907, 1.5),
    (-38.907, -34.5, 1.5),
    (-50.5, -34.5, 1.5),
    (-50.5, -50.5, 1.5),
    (-34.5, -50.5, 1.5),
    (38.907, -34.5, 1.5),
    (34.5, -38.907, 1.5),
    (34.5, -50.5, 1.5),
    (50.5, -50.5, 1.5),
    (50.5, -34.5, 1.5),
    (28.5, -43.494, 1.5),
    (-28.5, -43.494, 1.5),
    (-28.5, -65.5, 1.5),
    (28.5, -65.5, 1.5),
    (43.494, 28.5, 1.5),
    (43.494, -28.5, 1.5),
    (65.5, -28.5, 1.5),
    (65.5, 28.5, 1.5),
    (34.5, 38.907, 1.5),
    (38.907, 34.5, 1.5),
    (50.5, 34.5, 1.5),
    (50.5, 50.5, 1.5),
    (34.5, 50.5, 1.5),
]))
fillet.Radius = 3

sketch5 = doc.addObject("Sketcher::SketchObject", "Sketch004")
body.addObject(sketch5)
sketch5.AttachmentSupport = (doc.XY_Plane, [""])
sketch5.MapMode = "FlatFace"
sketch5.addGeometry(Part.Circle(Vector(-112, 0, 0), Vector(0, 0, 1), 48), False)
add_polygon(sketch5, [(-66, 72), (-66, 66), (-90, 66), (-90, 72)])
add_polygon(sketch5, [(-66, -66), (-66, -72), (-90, -72), (-90, -66)])
sketch5.addConstraint([
    Sketcher.Constraint("Vertical", 1),
    Sketcher.Constraint("Horizontal", 2),
    Sketcher.Constraint("Vertical", 3),
    Sketcher.Constraint("Horizontal", 4),
    Sketcher.Constraint("Vertical", 5),
    Sketcher.Constraint("Horizontal", 6),
    Sketcher.Constraint("Vertical", 7),
    Sketcher.Constraint("Horizontal", 8),
    Sketcher.Constraint("Symmetric", 4, 2, 5, 2, -1),
    Sketcher.Constraint("Symmetric", 2, 2, 7, 2, -1),
    Sketcher.Constraint("PointOnObject", 0, 3, -1),
    Sketcher.Constraint("Diameter", 0, Q("95 mm")),
    Sketcher.Constraint("DistanceX", 2, 2, 2, 1, Q("25 mm")),
    Sketcher.Constraint("DistanceY", 1, 2, 1, 1, Q("7 mm")),
    Sketcher.Constraint("DistanceX", 0, 3, 1, 2, Q("47 mm")),
    Sketcher.Constraint("DistanceY", 5, 2, 1, 2, Q("138 mm")),
    Sketcher.Constraint("DistanceX", 0, 3, -1, 1, Q("112.5 mm")),
])
pocket3 = doc.addObject("PartDesign::Pocket", "Pocket002")
body.addObject(pocket3)
pocket3.Profile = sketch5
pocket3.Length = 4
pocket3.Reversed = True
doc.recompute()

fillet2 = doc.addObject("PartDesign::Fillet", "Fillet001")
body.addObject(fillet2)
fillet2.Base = (pocket3, edges_at(pocket3, [
    (-97.5, 45.069, 2),
    (-97.5, -45.069, 2),
    (-65.5, 65.5, 2),
    (-65.5, 72.5, 2),
    (-65.5, -72.5, 2),
    (-65.5, -65.5, 2),
    (-65.5, -6.874, 1.5),
    (-65.5, 6.874, 1.5),
    (72.5, -72.5, 2),
    (72.5, 72.5, 2),
]))
fillet2.Radius = 3

sketch6 = doc.addObject("Sketcher::SketchObject", "Sketch005")
body.addObject(sketch6)
sketch6.AttachmentSupport = (doc.XY_Plane, [""])
sketch6.MapMode = "FlatFace"
add_polygon(sketch6, [(-82, -66), (-82, -72), (-98, -72), (-98, -66)])
sketch6.addConstraint([
    Sketcher.Constraint("Vertical", 0),
    Sketcher.Constraint("Horizontal", 1),
    Sketcher.Constraint("Vertical", 2),
    Sketcher.Constraint("Horizontal", 3),
    Sketcher.Constraint("DistanceX", 1, 2, 1, 1, Q("15 mm")),
    Sketcher.Constraint("DistanceY", 0, 2, 0, 1, Q("6 mm")),
    Sketcher.Constraint("DistanceX", 0, 2, -1, 1, Q("82.5 mm")),
    Sketcher.Constraint("DistanceY", 0, 2, -1, 1, Q("71.5 mm")),
])
pad3 = doc.addObject("PartDesign::Pad", "Pad002")
body.addObject(pad3)
pad3.Profile = sketch6
pad3.Length = 4

sketch7 = doc.addObject("Sketcher::SketchObject", "Sketch006")
body.addObject(sketch7)
sketch7.AttachmentSupport = (doc.XY_Plane, [""])
sketch7.MapMode = "FlatFace"
sketch7.AttachmentOffset = App.Placement(Vector(0, 0, 4), App.Rotation())
add_polygon(sketch7, [(-97.5, -71.5), (-82.5, -71.5), (-82.5, -64.1), (-92.5, -64.1), (-92.5, -54.1), (-97.5, -54.1)])
sketch7.addGeometry(Part.Circle(Vector(-86.5, -67.5, 0), Vector(0, 0, 1), 1.2), False)
sketch7.addGeometry(Part.Circle(Vector(-93.5, -67.5, 0), Vector(0, 0, 1), 1.2), False)
sketch7.addConstraint([
    Sketcher.Constraint("Horizontal", 0),
    Sketcher.Constraint("Vertical", 1),
    Sketcher.Constraint("Horizontal", 2),
    Sketcher.Constraint("Vertical", 3),
    Sketcher.Constraint("Horizontal", 4),
    Sketcher.Constraint("Vertical", 5),
    Sketcher.Constraint("Equal", 6, 7),
    Sketcher.Constraint("Horizontal", 6, 3, 7, 3),
    Sketcher.Constraint("Equal", 2, 3),
    Sketcher.Constraint("Diameter", 6, Q("2.5 mm")),
    Sketcher.Constraint("DistanceX", 0, 1, 0, 2, Q("15 mm")),
    Sketcher.Constraint("DistanceX", 2, 2, 2, 1, Q("10 mm")),
    Sketcher.Constraint("DistanceY", 1, 1, 1, 2, Q("7.4 mm")),
    Sketcher.Constraint("DistanceX", 7, 3, 6, 3, Q("7 mm")),
    Sketcher.Constraint("DistanceX", 6, 3, 0, 2, Q("4 mm")),
    Sketcher.Constraint("DistanceY", 0, 2, 6, 3, Q("4 mm")),
    Sketcher.Constraint("DistanceX", 6, 3, -1, 1, Q("86.5 mm")),
    Sketcher.Constraint("DistanceY", 6, 3, -1, 1, Q("67.5 mm")),
])
pad4 = doc.addObject("PartDesign::Pad", "Pad003")
body.addObject(pad4)
pad4.Profile = sketch7
pad4.Length = 10

sketch8 = doc.addObject("Sketcher::SketchObject", "Sketch007")
body.addObject(sketch8)
sketch8.AttachmentSupport = (doc.YZ_Plane, [""])
sketch8.MapMode = "FlatFace"
sketch8.AttachmentOffset = App.Placement(Vector(0, 0, -92.5), App.Rotation())
sketch8.addGeometry(Part.Circle(Vector(-59.5, 9, 0), Vector(0, 0, 1), 2.5), False)
sketch8.addConstraint([
    Sketcher.Constraint("Diameter", 0, Q("5 mm")),
    Sketcher.Constraint("DistanceY", -1, 1, 0, 3, Q("9 mm")),
    Sketcher.Constraint("DistanceX", 0, 3, -1, 1, Q("59.5 mm")),
])
pocket4 = doc.addObject("PartDesign::Pocket", "Pocket003")
body.addObject(pocket4)
pocket4.Profile = sketch8
pocket4.Length = 10

sketch9 = doc.addObject("Sketcher::SketchObject", "Sketch008")
body.addObject(sketch9)
sketch9.AttachmentSupport = (doc.XY_Plane, [""])
sketch9.MapMode = "FlatFace"
sketch9.AttachmentOffset = App.Placement(Vector(0, 0, -6), App.Rotation())
sketch9.addGeometry([
    Part.Circle(Vector(-93.5, -67.5, 0), Vector(0, 0, 1), 1.2),
    Part.Circle(Vector(-86.5, -67.5, 0), Vector(0, 0, 1), 1.2),
], False)
sketch9.addConstraint([
    Sketcher.Constraint("Equal", 0, 1),
    Sketcher.Constraint("Horizontal", 0, 3, 1, 3),
    Sketcher.Constraint("Diameter", 0, Q("2.5 mm")),
    Sketcher.Constraint("DistanceX", 0, 3, 1, 3, Q("7 mm")),
    Sketcher.Constraint("DistanceX", 0, 3, -1, 1, Q("93.5 mm")),
    Sketcher.Constraint("DistanceY", 0, 3, -1, 1, Q("67.5 mm")),
])
pocket5 = doc.addObject("PartDesign::Pocket", "Pocket004")
body.addObject(pocket5)
pocket5.Profile = sketch9
pocket5.Length = 10
pocket5.Reversed = True
doc.recompute()

mirrored = doc.addObject("PartDesign::Mirrored", "Mirrored")
body.addObject(mirrored)
mirrored.Originals = [pad3, pad4, pocket4, pocket5]
mirrored.MirrorPlane = (doc.XZ_Plane, [""])
body.Tip = mirrored
doc.recompute()

fillet3 = doc.addObject("PartDesign::Fillet", "Fillet002")
body.addObject(fillet3)
fillet3.Base = (mirrored, edges_at(mirrored, [
    (-82.5, -71.5, 7),
    (-82.5, -65.5, 2),
    (-97.5, -71.5, 7),
    (-82.5, 65.5, 2),
    (-82.5, 71.5, 7),
    (-97.5, 71.5, 7),
]))
fillet3.Radius = 2
doc.recompute()

fillet4 = doc.addObject("PartDesign::Fillet", "Fillet003")
body.addObject(fillet4)
fillet4.Base = (fillet3, edges_at(fillet3, [
    (-82.5, -64.1, 9),
    (-92.5, -64.1, 9),
    (-92.5, -54.1, 9),
    (-97.5, -54.1, 9),
    (-97.5, 54.1, 9),
    (-92.5, 54.1, 9),
    (-92.5, 64.1, 9),
    (-82.5, 64.1, 9),
]))
fillet4.Radius = 1

doc.recompute()
